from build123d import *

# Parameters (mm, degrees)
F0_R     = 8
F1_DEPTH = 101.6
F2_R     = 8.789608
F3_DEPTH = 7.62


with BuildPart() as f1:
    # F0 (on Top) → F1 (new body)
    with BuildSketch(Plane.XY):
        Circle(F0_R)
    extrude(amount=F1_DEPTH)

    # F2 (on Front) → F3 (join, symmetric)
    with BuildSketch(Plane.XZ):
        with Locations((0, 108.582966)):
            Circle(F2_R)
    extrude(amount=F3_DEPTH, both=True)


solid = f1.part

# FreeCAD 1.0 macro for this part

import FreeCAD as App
import Part
import Sketcher
Q = App.Units.Quantity

doc = App.newDocument("Part")
body = doc.addObject("PartDesign::Body", "Body")

# Sketch on XY plane
sketch1 = body.newObject("Sketcher::SketchObject", "Sketch")
sketch1.AttachmentSupport = (doc.getObject("XY_Plane"), [""])
sketch1.MapMode = "FlatFace"
sketch1.addGeometry(Part.Circle(App.Vector(0, 0, 0), App.Vector(0, 0, 1), 8), False)
sketch1.addConstraint([
    Sketcher.Constraint("Coincident", 0, 3, -1, 1),
    Sketcher.Constraint("Diameter", 0, Q("16 mm")),
])
pad1 = body.newObject("PartDesign::Pad", "Pad")
pad1.Profile = sketch1
pad1.Length = Q("4 in")

# Sketch on XZ plane
sketch2 = body.newObject("Sketcher::SketchObject", "Sketch001")
sketch2.AttachmentSupport = (doc.getObject("XZ_Plane"), [""])
sketch2.MapMode = "FlatFace"
sketch2.addGeometry(Part.Circle(App.Vector(0, 108.582966, 0), App.Vector(0, 0, 1), 8.789608), False)
sketch2.addConstraint([
    Sketcher.Constraint("PointOnObject", 0, 3, -2),
    Sketcher.Constraint("Diameter", 0, Q("17.579216 mm")),
    Sketcher.Constraint("DistanceY", -1, 1, 0, 3, Q("108.582966 mm")),
])
pad2 = body.newObject("PartDesign::Pad", "Pad001")
pad2.Profile = sketch2
pad2.Length = Q("0.6 in")
pad2.Midplane = True

doc.recompute()
